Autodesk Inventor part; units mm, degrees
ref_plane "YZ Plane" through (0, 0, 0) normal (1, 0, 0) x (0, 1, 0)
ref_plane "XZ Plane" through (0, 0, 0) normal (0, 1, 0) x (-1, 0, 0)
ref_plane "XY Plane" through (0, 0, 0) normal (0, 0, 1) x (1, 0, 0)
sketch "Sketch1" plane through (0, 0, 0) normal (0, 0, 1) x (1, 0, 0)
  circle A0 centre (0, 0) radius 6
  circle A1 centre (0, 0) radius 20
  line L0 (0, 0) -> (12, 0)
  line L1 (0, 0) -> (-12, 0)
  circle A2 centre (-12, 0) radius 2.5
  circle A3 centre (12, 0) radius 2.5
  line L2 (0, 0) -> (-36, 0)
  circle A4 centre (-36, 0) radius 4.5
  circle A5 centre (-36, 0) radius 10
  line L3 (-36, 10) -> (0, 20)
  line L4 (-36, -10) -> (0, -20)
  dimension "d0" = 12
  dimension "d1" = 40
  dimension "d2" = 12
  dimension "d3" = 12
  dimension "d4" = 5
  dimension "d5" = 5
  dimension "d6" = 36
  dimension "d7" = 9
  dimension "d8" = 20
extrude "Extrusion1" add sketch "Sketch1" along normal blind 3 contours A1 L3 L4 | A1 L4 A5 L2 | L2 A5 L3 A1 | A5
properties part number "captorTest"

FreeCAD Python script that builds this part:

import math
import FreeCAD as App
import Part
import Sketcher
Q = App.Units.Quantity

doc = App.newDocument("Part")
body = doc.addObject("PartDesign::Body", "Body")

# Sketch on XY plane
sketch1 = body.newObject("Sketcher::SketchObject", "Sketch")
sketch1.AttachmentSupport = (doc.getObject("XY_Plane"), [""])
sketch1.MapMode = "FlatFace"
sketch1.addGeometry([
    Part.LineSegment(App.Vector(0, 20, 0), App.Vector(-36, 10, 0)),  # 0
    Part.ArcOfCircle(Part.Circle(App.Vector(-36, 0, 0), App.Vector(0, 0, 1), 10), math.radians(90), math.radians(270)),  # 1
    Part.LineSegment(App.Vector(-36, -10, 0), App.Vector(0, -20, 0)),  # 2
    Part.ArcOfCircle(Part.Circle(App.Vector(0, 0, 0), App.Vector(0, 0, 1), 20), math.radians(-90), math.radians(90)),  # 3
    Part.ArcOfCircle(Part.Circle(App.Vector(-12, 0, 0), App.Vector(0, 0, 1), 2.5), math.radians(0), math.radians(180)),  # 4
    Part.ArcOfCircle(Part.Circle(App.Vector(-12, 0, 0), App.Vector(0, 0, 1), 2.5), math.radians(180), math.radians(360)),  # 5
    Part.ArcOfCircle(Part.Circle(App.Vector(0, 0, 0), App.Vector(0, 0, 1), 6), math.radians(0), math.radians(180)),  # 6
    Part.ArcOfCircle(Part.Circle(App.Vector(0, 0, 0), App.Vector(0, 0, 1), 6), math.radians(180), math.radians(360)),  # 7
    Part.Circle(App.Vector(12, 0, 0), App.Vector(0, 0, 1), 2.5),  # 8
    Part.Circle(App.Vector(-36, 0, 0), App.Vector(0, 0, 1), 4.5),  # 9
], False)
sketch1.addConstraint([
    Sketcher.Constraint("Coincident", 0, 2, 1, 1),
    Sketcher.Constraint("Coincident", 1, 2, 2, 1),
    Sketcher.Constraint("Coincident", 2, 2, 3, 1),
    Sketcher.Constraint("Coincident", 3, 2, 0, 1),
    Sketcher.Constraint("Tangent", 4, 1, 5, 2),
    Sketcher.Constraint("Coincident", 5, 1, 4, 2),
    Sketcher.Constraint("Tangent", 6, 1, 7, 2),
    Sketcher.Constraint("Coincident", 7, 1, 6, 2),
    Sketcher.Constraint("Coincident", 3, 3, -1, 1),
    Sketcher.Constraint("Coincident", 6, 3, -1, 1),
    Sketcher.Constraint("Coincident", 9, 3, 1, 3),
    Sketcher.Constraint("Equal", 5, 8),
    Sketcher.Constraint("Symmetric", 4, 3, 8, 3, -1, 1),
    Sketcher.Constraint("Symmetric", 0, 2, 1, 2, -1),
    Sketcher.Constraint("PointOnObject", 4, 3, -1),
    Sketcher.Constraint("PointOnObject", 2, 2, -2),
    Sketcher.Constraint("PointOnObject", 3, 2, -2),
    Sketcher.Constraint("PointOnObject", 4, 1, -1),
    Sketcher.Constraint("PointOnObject", 5, 1, -1),
    Sketcher.Constraint("PointOnObject", 6, 1, -1),
    Sketcher.Constraint("PointOnObject", 7, 1, -1),
    Sketcher.Constraint("Vertical", 9, 3, 0, 2),
    Sketcher.Constraint("Diameter", 8, Q("5 mm")),
    Sketcher.Constraint("Diameter", 9, Q("9 mm")),
    Sketcher.Constraint("Radius", 1, Q("10 mm")),
    Sketcher.Constraint("Radius", 3, Q("20 mm")),
    Sketcher.Constraint("Radius", 6, Q("6 mm")),
    Sketcher.Constraint("DistanceX", 1, 3, -1, 1, Q("36 mm")),
    Sketcher.Constraint("DistanceX", 4, 3, -1, 1, Q("12 mm")),
])
pad1 = body.newObject("PartDesign::Pad", "Pad")
pad1.Profile = sketch1
pad1.Length = 3

doc.recompute()
